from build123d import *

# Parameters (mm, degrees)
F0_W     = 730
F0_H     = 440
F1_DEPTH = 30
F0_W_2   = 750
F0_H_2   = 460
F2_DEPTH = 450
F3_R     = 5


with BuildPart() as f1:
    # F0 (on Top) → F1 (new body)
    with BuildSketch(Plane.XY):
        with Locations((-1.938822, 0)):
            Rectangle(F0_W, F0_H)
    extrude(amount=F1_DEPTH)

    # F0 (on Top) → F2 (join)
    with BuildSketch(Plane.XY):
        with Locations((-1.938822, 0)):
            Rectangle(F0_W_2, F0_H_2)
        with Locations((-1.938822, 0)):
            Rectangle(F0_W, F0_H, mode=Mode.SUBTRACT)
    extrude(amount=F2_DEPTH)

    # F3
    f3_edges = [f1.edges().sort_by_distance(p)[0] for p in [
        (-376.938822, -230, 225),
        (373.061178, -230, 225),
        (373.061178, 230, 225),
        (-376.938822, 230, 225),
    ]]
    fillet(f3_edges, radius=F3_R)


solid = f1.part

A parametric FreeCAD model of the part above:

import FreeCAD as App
import Part
import Sketcher


def edges_at(feature, points):
    """Names of the edges that pass closest to the given points."""
    edges = feature.Shape.Edges
    near = lambda p: min(range(len(edges)), key=lambda i: edges[i].distToShape(Part.Vertex(*p))[0])
    return sorted({f"Edge{near(p) + 1}" for p in points})

doc = App.newDocument("Part")
body = doc.addObject("PartDesign::Body", "Body")

sketch1 = body.newObject("Sketcher::SketchObject", "Sketch")
sketch1.AttachmentSupport = (doc.getObject("XY_Plane"), [""])
sketch1.MapMode = "FlatFace"
sketch1.addGeometry(Part.LineSegment(App.Vector(-367, 220, 0), App.Vector(-367, -220, 0)), False)
sketch1.addGeometry(Part.LineSegment(App.Vector(-367, -220, 0), App.Vector(363, -220, 0)), False)
sketch1.addGeometry(Part.LineSegment(App.Vector(363, -220, 0), App.Vector(363, 220, 0)), False)
sketch1.addGeometry(Part.LineSegment(App.Vector(363, 220, 0), App.Vector(-367, 220, 0)), False)
sketch1.addConstraint(Sketcher.Constraint("Coincident", 0, 2, 1, 1))
sketch1.addConstraint(Sketcher.Constraint("Coincident", 1, 2, 2, 1))
sketch1.addConstraint(Sketcher.Constraint("Coincident", 2, 2, 3, 1))
sketch1.addConstraint(Sketcher.Constraint("Coincident", 3, 2, 0, 1))
sketch1.addConstraint(Sketcher.Constraint("Vertical", 0))
sketch1.addConstraint(Sketcher.Constraint("Horizontal", 1))
sketch1.addConstraint(Sketcher.Constraint("Vertical", 2))
sketch1.addConstraint(Sketcher.Constraint("Horizontal", 3))
sketch1.addConstraint(Sketcher.Constraint("DistanceX", 1, 1, 1, 2, 730.0))
sketch1.addConstraint(Sketcher.Constraint("DistanceY", 0, 2, 0, 1, 440.0))
sketch1.addConstraint(Sketcher.Constraint("DistanceY", 0, 2, -1, 1, 220.0))
sketch1.addConstraint(Sketcher.Constraint("DistanceX", 0, 2, -1, 1, 366.938822))
pad1 = body.newObject("PartDesign::Pad", "Pad")
pad1.Profile = sketch1
pad1.Length = 30

sketch2 = body.newObject("Sketcher::SketchObject", "Sketch001")
sketch2.AttachmentSupport = (doc.getObject("XY_Plane"), [""])
sketch2.MapMode = "FlatFace"
sketch2.addGeometry(Part.LineSegment(App.Vector(-377, 230, 0), App.Vector(-377, -230, 0)), False)
sketch2.addGeometry(Part.LineSegment(App.Vector(-377, -230, 0), App.Vector(373, -230, 0)), False)
sketch2.addGeometry(Part.LineSegment(App.Vector(373, -230, 0), App.Vector(373, 230, 0)), False)
sketch2.addGeometry(Part.LineSegment(App.Vector(373, 230, 0), App.Vector(-377, 230, 0)), False)
sketch2.addGeometry(Part.LineSegment(App.Vector(363, -220, 0), App.Vector(-367, -220, 0)), False)
sketch2.addGeometry(Part.LineSegment(App.Vector(-367, -220, 0), App.Vector(-367, 220, 0)), False)
sketch2.addGeometry(Part.LineSegment(App.Vector(-367, 220, 0), App.Vector(363, 220, 0)), False)
sketch2.addGeometry(Part.LineSegment(App.Vector(363, 220, 0), App.Vector(363, -220, 0)), False)
sketch2.addConstraint(Sketcher.Constraint("Coincident", 0, 2, 1, 1))
sketch2.addConstraint(Sketcher.Constraint("Coincident", 1, 2, 2, 1))
sketch2.addConstraint(Sketcher.Constraint("Coincident", 2, 2, 3, 1))
sketch2.addConstraint(Sketcher.Constraint("Coincident", 3, 2, 0, 1))
sketch2.addConstraint(Sketcher.Constraint("Coincident", 4, 2, 5, 1))
sketch2.addConstraint(Sketcher.Constraint("Coincident", 5, 2, 6, 1))
sketch2.addConstraint(Sketcher.Constraint("Coincident", 6, 2, 7, 1))
sketch2.addConstraint(Sketcher.Constraint("Coincident", 7, 2, 4, 1))
sketch2.addConstraint(Sketcher.Constraint("Vertical", 0))
sketch2.addConstraint(Sketcher.Constraint("Horizontal", 1))
sketch2.addConstraint(Sketcher.Constraint("Vertical", 2))
sketch2.addConstraint(Sketcher.Constraint("Horizontal", 3))
sketch2.addConstraint(Sketcher.Constraint("Horizontal", 4))
sketch2.addConstraint(Sketcher.Constraint("Vertical", 5))
sketch2.addConstraint(Sketcher.Constraint("Horizontal", 6))
sketch2.addConstraint(Sketcher.Constraint("Vertical", 7))
sketch2.addConstraint(Sketcher.Constraint("DistanceX", 1, 1, 1, 2, 750.0))
sketch2.addConstraint(Sketcher.Constraint("DistanceX", 4, 2, 4, 1, 730.0))
sketch2.addConstraint(Sketcher.Constraint("DistanceY", 0, 2, 0, 1, 460.0))
sketch2.addConstraint(Sketcher.Constraint("DistanceY", 5, 1, 5, 2, 440.0))
sketch2.addConstraint(Sketcher.Constraint("DistanceY", 0, 2, -1, 1, 230.0))
sketch2.addConstraint(Sketcher.Constraint("DistanceY", 4, 2, -1, 1, 220.0))
sketch2.addConstraint(Sketcher.Constraint("DistanceX", 0, 2, 4, 2, 10.0))
sketch2.addConstraint(Sketcher.Constraint("DistanceX", 0, 2, -1, 1, 376.938822))
pad2 = body.newObject("PartDesign::Pad", "Pad001")
pad2.Profile = sketch2
pad2.Length = 450
doc.recompute()

fillet = body.newObject("PartDesign::Fillet", "Fillet")
fillet.Base = (pad2, edges_at(pad2, [
    (-376.939, -230, 225),
    (373.061, -230, 225),
    (373.061, 230, 225),
    (-376.939, 230, 225),
]))
fillet.Radius = 5

doc.recompute()
